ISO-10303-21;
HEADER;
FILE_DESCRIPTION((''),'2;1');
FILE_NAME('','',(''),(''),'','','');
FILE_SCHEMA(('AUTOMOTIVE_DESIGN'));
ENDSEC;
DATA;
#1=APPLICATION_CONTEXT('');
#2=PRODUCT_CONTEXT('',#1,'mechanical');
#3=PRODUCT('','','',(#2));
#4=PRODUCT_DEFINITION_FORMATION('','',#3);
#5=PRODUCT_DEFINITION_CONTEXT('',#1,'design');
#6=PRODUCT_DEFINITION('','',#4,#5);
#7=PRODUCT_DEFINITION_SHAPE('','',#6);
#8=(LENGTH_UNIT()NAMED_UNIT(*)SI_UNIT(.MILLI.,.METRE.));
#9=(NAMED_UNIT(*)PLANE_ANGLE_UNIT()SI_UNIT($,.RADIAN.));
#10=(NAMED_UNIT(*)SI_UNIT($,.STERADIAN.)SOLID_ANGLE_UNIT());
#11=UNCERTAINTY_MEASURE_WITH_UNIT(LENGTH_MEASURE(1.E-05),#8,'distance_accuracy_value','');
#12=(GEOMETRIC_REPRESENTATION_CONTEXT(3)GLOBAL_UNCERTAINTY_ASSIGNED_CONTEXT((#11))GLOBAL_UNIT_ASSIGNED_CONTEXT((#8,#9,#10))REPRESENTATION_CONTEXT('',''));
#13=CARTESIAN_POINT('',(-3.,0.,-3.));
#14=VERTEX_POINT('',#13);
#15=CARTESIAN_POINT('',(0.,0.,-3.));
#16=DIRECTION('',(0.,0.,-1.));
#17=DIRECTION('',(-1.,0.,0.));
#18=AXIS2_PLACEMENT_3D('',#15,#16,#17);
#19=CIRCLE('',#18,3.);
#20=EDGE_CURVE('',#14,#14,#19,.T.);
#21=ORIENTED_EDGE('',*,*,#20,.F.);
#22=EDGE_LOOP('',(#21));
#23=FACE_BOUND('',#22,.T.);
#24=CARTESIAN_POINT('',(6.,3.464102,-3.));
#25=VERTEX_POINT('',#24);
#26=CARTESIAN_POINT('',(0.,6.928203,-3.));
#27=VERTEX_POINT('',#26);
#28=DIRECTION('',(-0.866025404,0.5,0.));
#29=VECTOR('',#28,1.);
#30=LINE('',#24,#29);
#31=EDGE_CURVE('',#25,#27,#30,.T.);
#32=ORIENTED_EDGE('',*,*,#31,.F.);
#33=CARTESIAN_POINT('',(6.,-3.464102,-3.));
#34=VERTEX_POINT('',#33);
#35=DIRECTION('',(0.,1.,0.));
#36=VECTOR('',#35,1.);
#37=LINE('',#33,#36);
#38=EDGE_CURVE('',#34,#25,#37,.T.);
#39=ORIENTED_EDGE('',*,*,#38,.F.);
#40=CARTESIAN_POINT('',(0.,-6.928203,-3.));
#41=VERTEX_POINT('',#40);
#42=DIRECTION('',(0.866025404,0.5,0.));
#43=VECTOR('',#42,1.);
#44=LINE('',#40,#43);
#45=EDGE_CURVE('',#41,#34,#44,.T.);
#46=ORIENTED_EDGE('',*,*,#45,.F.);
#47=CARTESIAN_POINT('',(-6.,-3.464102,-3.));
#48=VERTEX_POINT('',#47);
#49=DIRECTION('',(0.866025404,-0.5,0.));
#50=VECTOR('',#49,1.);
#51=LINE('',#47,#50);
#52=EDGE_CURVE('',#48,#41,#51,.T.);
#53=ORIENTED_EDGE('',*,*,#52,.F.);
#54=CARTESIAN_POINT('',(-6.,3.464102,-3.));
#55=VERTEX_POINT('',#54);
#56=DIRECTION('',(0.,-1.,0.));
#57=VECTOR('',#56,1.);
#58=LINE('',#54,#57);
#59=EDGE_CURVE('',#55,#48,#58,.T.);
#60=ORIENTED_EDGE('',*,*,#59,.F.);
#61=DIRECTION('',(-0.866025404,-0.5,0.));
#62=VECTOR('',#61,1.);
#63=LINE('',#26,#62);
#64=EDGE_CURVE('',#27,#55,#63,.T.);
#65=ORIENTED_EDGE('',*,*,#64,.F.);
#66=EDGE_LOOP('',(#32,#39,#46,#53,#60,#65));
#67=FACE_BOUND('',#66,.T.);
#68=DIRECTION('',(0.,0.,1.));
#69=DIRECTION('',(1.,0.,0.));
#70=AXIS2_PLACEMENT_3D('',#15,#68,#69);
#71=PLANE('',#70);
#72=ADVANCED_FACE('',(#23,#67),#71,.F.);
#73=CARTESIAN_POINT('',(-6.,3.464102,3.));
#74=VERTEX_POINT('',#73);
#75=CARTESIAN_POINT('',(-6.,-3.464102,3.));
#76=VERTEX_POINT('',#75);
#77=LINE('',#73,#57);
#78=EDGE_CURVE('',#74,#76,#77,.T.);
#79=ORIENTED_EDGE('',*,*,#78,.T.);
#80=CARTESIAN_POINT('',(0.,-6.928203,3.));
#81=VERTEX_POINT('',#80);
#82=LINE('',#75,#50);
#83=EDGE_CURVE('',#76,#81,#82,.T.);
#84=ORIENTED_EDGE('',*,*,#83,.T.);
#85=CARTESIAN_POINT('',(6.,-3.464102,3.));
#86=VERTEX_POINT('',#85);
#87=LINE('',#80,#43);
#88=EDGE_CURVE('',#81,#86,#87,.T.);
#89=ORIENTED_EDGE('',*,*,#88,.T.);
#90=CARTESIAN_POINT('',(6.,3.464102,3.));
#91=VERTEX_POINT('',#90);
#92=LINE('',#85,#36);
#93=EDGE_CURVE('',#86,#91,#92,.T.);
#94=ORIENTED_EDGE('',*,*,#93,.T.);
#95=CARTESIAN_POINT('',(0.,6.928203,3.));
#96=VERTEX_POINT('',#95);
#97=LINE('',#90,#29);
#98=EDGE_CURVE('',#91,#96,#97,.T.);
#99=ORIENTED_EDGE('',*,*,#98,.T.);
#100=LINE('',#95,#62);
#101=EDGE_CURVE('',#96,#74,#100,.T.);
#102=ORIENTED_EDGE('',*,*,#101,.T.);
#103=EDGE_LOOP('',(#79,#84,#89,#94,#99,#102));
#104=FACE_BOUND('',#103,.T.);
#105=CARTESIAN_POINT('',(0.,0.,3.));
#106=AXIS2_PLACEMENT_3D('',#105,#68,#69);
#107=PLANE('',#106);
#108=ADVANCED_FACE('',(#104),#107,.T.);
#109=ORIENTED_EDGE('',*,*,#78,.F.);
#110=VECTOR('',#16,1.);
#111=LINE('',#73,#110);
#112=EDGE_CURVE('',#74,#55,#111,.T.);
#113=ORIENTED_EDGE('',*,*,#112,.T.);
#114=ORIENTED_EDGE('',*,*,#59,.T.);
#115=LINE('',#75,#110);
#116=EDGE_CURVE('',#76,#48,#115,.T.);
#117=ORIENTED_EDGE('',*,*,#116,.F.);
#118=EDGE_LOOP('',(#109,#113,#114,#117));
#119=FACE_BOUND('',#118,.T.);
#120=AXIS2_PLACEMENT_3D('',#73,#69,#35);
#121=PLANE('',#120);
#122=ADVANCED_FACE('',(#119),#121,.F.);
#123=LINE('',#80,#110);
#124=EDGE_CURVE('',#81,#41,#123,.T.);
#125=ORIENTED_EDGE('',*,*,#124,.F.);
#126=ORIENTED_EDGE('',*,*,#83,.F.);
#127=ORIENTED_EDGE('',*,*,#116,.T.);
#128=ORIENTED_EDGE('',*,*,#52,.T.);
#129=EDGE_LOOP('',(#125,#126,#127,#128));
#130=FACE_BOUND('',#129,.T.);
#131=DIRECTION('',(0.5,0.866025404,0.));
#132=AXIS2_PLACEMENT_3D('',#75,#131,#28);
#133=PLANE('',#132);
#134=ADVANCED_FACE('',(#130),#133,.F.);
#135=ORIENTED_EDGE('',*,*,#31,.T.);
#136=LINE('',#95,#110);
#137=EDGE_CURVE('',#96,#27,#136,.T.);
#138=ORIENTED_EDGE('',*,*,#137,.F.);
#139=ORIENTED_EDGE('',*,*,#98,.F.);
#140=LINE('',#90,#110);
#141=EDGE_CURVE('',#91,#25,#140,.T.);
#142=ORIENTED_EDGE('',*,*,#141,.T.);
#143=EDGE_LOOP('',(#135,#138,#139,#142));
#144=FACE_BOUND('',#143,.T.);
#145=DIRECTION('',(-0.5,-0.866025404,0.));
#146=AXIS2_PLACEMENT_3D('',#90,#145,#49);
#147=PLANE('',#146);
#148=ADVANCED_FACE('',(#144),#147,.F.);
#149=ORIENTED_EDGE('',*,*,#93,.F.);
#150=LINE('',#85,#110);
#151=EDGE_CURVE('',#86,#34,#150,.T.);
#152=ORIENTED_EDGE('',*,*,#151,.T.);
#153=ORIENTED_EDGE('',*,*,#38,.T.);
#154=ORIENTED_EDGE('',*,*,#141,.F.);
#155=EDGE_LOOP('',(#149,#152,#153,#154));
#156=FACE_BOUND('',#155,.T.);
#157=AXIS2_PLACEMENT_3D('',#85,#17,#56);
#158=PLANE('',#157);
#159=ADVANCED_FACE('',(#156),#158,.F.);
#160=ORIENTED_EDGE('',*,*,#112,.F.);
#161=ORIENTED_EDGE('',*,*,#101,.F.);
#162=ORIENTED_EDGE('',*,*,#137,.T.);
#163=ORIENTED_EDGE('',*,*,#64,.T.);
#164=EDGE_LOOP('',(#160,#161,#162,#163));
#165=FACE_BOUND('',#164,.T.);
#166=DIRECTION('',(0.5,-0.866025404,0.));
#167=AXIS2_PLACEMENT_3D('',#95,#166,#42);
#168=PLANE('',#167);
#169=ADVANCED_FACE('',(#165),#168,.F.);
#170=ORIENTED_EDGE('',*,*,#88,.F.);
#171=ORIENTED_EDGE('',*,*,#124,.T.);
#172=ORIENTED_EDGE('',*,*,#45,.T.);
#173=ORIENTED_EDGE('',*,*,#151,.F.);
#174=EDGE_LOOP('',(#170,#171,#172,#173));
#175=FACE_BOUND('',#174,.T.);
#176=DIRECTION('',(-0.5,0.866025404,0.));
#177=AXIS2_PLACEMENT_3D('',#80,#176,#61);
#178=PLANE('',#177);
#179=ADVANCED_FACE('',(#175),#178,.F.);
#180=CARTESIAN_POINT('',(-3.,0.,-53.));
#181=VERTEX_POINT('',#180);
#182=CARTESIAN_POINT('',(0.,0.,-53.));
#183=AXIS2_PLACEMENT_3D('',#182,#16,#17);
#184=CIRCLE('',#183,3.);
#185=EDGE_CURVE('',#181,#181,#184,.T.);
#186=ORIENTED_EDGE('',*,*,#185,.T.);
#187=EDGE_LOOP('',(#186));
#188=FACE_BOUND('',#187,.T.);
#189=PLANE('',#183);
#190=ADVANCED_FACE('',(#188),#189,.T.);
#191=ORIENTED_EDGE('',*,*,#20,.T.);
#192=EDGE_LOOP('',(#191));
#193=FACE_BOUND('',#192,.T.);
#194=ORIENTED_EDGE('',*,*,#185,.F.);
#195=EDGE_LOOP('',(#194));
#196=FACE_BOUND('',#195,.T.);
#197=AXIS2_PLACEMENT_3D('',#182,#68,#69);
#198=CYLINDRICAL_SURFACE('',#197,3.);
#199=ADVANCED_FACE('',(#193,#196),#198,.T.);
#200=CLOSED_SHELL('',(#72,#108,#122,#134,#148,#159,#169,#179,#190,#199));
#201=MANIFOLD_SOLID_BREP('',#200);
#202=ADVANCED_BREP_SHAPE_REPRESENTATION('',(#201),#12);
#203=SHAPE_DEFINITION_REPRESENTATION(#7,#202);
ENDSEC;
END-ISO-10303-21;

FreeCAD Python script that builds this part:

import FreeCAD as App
import Part
import Sketcher
Q = App.Units.Quantity

doc = App.newDocument("Part")
params = doc.addObject("Spreadsheet::Sheet", "Params")
for row, (alias, value) in enumerate([
    ("pad1_length", "6 mm"),
    ("sketch2_diameter", "6 mm"),
    ("pad2_length", "50 mm"),
], start=1):
    params.set(f"A{row}", alias)
    params.set(f"B{row}", "=" + value)
    params.setAlias(f"B{row}", alias)

body = doc.addObject("PartDesign::Body", "Body")

sketch1 = body.newObject("Sketcher::SketchObject", "Sketch")
sketch1.AttachmentSupport = (doc.getObject("XY_Plane"), [""])
sketch1.MapMode = "FlatFace"
sketch1.addGeometry([
    Part.LineSegment(App.Vector(0, 6.928203, 0), App.Vector(-6, 3.464102, 0)),
    Part.LineSegment(App.Vector(-6, 3.464102, 0), App.Vector(-6, -3.464102, 0)),
    Part.LineSegment(App.Vector(-6, -3.464102, 0), App.Vector(0, -6.928203, 0)),
    Part.LineSegment(App.Vector(0, -6.928203, 0), App.Vector(6, -3.464102, 0)),
    Part.LineSegment(App.Vector(6, -3.464102, 0), App.Vector(6, 3.464102, 0)),
    Part.LineSegment(App.Vector(6, 3.464102, 0), App.Vector(0, 6.928203, 0)),
], False)
sketch1.addConstraint([
    Sketcher.Constraint("Coincident", 0, 2, 1, 1),
    Sketcher.Constraint("Coincident", 1, 2, 2, 1),
    Sketcher.Constraint("Coincident", 2, 2, 3, 1),
    Sketcher.Constraint("Coincident", 3, 2, 4, 1),
    Sketcher.Constraint("Coincident", 4, 2, 5, 1),
    Sketcher.Constraint("Coincident", 5, 2, 0, 1),
    Sketcher.Constraint("Vertical", 1),
    Sketcher.Constraint("Vertical", 4),
    Sketcher.Constraint("Symmetric", 0, 2, 3, 2, -1, 1),
    Sketcher.Constraint("Symmetric", 2, 2, 5, 2, -1, 1),
    Sketcher.Constraint("PointOnObject", 2, 2, -2),
    Sketcher.Constraint("Parallel", 2, 5),
    Sketcher.Constraint("Horizontal", 1, 2, 3, 2),
    Sketcher.Constraint("Angle", 0, Q("-150 deg")),
    Sketcher.Constraint("DistanceX", 0, 2, -1, 1, Q("6 mm")),
    Sketcher.Constraint("DistanceY", -1, 1, 0, 2, Q("3.464102 mm")),
])
pad1 = body.newObject("PartDesign::Pad", "Pad")
pad1.Profile = sketch1
pad1.setExpression("Length", "Params.pad1_length")
pad1.Midplane = True

sketch2 = body.newObject("Sketcher::SketchObject", "Sketch001")
sketch2.AttachmentSupport = (doc.getObject("XY_Plane"), [""])
sketch2.MapMode = "FlatFace"
sketch2.AttachmentOffset = App.Placement(App.Vector(0, 0, -3), App.Rotation())
sketch2.addGeometry(Part.Circle(App.Vector(0, 0, 0), App.Vector(0, 0, 1), 3), False)
sketch2.addConstraint([
    Sketcher.Constraint("Coincident", 0, 3, -1, 1),
    Sketcher.Constraint("Diameter", 0, Q("6 mm")),
])
sketch2.setExpression("Constraints[1]", "Params.sketch2_diameter")
pad2 = body.newObject("PartDesign::Pad", "Pad001")
pad2.Profile = sketch2
pad2.setExpression("Length", "Params.pad2_length")
pad2.Reversed = True

doc.recompute()
